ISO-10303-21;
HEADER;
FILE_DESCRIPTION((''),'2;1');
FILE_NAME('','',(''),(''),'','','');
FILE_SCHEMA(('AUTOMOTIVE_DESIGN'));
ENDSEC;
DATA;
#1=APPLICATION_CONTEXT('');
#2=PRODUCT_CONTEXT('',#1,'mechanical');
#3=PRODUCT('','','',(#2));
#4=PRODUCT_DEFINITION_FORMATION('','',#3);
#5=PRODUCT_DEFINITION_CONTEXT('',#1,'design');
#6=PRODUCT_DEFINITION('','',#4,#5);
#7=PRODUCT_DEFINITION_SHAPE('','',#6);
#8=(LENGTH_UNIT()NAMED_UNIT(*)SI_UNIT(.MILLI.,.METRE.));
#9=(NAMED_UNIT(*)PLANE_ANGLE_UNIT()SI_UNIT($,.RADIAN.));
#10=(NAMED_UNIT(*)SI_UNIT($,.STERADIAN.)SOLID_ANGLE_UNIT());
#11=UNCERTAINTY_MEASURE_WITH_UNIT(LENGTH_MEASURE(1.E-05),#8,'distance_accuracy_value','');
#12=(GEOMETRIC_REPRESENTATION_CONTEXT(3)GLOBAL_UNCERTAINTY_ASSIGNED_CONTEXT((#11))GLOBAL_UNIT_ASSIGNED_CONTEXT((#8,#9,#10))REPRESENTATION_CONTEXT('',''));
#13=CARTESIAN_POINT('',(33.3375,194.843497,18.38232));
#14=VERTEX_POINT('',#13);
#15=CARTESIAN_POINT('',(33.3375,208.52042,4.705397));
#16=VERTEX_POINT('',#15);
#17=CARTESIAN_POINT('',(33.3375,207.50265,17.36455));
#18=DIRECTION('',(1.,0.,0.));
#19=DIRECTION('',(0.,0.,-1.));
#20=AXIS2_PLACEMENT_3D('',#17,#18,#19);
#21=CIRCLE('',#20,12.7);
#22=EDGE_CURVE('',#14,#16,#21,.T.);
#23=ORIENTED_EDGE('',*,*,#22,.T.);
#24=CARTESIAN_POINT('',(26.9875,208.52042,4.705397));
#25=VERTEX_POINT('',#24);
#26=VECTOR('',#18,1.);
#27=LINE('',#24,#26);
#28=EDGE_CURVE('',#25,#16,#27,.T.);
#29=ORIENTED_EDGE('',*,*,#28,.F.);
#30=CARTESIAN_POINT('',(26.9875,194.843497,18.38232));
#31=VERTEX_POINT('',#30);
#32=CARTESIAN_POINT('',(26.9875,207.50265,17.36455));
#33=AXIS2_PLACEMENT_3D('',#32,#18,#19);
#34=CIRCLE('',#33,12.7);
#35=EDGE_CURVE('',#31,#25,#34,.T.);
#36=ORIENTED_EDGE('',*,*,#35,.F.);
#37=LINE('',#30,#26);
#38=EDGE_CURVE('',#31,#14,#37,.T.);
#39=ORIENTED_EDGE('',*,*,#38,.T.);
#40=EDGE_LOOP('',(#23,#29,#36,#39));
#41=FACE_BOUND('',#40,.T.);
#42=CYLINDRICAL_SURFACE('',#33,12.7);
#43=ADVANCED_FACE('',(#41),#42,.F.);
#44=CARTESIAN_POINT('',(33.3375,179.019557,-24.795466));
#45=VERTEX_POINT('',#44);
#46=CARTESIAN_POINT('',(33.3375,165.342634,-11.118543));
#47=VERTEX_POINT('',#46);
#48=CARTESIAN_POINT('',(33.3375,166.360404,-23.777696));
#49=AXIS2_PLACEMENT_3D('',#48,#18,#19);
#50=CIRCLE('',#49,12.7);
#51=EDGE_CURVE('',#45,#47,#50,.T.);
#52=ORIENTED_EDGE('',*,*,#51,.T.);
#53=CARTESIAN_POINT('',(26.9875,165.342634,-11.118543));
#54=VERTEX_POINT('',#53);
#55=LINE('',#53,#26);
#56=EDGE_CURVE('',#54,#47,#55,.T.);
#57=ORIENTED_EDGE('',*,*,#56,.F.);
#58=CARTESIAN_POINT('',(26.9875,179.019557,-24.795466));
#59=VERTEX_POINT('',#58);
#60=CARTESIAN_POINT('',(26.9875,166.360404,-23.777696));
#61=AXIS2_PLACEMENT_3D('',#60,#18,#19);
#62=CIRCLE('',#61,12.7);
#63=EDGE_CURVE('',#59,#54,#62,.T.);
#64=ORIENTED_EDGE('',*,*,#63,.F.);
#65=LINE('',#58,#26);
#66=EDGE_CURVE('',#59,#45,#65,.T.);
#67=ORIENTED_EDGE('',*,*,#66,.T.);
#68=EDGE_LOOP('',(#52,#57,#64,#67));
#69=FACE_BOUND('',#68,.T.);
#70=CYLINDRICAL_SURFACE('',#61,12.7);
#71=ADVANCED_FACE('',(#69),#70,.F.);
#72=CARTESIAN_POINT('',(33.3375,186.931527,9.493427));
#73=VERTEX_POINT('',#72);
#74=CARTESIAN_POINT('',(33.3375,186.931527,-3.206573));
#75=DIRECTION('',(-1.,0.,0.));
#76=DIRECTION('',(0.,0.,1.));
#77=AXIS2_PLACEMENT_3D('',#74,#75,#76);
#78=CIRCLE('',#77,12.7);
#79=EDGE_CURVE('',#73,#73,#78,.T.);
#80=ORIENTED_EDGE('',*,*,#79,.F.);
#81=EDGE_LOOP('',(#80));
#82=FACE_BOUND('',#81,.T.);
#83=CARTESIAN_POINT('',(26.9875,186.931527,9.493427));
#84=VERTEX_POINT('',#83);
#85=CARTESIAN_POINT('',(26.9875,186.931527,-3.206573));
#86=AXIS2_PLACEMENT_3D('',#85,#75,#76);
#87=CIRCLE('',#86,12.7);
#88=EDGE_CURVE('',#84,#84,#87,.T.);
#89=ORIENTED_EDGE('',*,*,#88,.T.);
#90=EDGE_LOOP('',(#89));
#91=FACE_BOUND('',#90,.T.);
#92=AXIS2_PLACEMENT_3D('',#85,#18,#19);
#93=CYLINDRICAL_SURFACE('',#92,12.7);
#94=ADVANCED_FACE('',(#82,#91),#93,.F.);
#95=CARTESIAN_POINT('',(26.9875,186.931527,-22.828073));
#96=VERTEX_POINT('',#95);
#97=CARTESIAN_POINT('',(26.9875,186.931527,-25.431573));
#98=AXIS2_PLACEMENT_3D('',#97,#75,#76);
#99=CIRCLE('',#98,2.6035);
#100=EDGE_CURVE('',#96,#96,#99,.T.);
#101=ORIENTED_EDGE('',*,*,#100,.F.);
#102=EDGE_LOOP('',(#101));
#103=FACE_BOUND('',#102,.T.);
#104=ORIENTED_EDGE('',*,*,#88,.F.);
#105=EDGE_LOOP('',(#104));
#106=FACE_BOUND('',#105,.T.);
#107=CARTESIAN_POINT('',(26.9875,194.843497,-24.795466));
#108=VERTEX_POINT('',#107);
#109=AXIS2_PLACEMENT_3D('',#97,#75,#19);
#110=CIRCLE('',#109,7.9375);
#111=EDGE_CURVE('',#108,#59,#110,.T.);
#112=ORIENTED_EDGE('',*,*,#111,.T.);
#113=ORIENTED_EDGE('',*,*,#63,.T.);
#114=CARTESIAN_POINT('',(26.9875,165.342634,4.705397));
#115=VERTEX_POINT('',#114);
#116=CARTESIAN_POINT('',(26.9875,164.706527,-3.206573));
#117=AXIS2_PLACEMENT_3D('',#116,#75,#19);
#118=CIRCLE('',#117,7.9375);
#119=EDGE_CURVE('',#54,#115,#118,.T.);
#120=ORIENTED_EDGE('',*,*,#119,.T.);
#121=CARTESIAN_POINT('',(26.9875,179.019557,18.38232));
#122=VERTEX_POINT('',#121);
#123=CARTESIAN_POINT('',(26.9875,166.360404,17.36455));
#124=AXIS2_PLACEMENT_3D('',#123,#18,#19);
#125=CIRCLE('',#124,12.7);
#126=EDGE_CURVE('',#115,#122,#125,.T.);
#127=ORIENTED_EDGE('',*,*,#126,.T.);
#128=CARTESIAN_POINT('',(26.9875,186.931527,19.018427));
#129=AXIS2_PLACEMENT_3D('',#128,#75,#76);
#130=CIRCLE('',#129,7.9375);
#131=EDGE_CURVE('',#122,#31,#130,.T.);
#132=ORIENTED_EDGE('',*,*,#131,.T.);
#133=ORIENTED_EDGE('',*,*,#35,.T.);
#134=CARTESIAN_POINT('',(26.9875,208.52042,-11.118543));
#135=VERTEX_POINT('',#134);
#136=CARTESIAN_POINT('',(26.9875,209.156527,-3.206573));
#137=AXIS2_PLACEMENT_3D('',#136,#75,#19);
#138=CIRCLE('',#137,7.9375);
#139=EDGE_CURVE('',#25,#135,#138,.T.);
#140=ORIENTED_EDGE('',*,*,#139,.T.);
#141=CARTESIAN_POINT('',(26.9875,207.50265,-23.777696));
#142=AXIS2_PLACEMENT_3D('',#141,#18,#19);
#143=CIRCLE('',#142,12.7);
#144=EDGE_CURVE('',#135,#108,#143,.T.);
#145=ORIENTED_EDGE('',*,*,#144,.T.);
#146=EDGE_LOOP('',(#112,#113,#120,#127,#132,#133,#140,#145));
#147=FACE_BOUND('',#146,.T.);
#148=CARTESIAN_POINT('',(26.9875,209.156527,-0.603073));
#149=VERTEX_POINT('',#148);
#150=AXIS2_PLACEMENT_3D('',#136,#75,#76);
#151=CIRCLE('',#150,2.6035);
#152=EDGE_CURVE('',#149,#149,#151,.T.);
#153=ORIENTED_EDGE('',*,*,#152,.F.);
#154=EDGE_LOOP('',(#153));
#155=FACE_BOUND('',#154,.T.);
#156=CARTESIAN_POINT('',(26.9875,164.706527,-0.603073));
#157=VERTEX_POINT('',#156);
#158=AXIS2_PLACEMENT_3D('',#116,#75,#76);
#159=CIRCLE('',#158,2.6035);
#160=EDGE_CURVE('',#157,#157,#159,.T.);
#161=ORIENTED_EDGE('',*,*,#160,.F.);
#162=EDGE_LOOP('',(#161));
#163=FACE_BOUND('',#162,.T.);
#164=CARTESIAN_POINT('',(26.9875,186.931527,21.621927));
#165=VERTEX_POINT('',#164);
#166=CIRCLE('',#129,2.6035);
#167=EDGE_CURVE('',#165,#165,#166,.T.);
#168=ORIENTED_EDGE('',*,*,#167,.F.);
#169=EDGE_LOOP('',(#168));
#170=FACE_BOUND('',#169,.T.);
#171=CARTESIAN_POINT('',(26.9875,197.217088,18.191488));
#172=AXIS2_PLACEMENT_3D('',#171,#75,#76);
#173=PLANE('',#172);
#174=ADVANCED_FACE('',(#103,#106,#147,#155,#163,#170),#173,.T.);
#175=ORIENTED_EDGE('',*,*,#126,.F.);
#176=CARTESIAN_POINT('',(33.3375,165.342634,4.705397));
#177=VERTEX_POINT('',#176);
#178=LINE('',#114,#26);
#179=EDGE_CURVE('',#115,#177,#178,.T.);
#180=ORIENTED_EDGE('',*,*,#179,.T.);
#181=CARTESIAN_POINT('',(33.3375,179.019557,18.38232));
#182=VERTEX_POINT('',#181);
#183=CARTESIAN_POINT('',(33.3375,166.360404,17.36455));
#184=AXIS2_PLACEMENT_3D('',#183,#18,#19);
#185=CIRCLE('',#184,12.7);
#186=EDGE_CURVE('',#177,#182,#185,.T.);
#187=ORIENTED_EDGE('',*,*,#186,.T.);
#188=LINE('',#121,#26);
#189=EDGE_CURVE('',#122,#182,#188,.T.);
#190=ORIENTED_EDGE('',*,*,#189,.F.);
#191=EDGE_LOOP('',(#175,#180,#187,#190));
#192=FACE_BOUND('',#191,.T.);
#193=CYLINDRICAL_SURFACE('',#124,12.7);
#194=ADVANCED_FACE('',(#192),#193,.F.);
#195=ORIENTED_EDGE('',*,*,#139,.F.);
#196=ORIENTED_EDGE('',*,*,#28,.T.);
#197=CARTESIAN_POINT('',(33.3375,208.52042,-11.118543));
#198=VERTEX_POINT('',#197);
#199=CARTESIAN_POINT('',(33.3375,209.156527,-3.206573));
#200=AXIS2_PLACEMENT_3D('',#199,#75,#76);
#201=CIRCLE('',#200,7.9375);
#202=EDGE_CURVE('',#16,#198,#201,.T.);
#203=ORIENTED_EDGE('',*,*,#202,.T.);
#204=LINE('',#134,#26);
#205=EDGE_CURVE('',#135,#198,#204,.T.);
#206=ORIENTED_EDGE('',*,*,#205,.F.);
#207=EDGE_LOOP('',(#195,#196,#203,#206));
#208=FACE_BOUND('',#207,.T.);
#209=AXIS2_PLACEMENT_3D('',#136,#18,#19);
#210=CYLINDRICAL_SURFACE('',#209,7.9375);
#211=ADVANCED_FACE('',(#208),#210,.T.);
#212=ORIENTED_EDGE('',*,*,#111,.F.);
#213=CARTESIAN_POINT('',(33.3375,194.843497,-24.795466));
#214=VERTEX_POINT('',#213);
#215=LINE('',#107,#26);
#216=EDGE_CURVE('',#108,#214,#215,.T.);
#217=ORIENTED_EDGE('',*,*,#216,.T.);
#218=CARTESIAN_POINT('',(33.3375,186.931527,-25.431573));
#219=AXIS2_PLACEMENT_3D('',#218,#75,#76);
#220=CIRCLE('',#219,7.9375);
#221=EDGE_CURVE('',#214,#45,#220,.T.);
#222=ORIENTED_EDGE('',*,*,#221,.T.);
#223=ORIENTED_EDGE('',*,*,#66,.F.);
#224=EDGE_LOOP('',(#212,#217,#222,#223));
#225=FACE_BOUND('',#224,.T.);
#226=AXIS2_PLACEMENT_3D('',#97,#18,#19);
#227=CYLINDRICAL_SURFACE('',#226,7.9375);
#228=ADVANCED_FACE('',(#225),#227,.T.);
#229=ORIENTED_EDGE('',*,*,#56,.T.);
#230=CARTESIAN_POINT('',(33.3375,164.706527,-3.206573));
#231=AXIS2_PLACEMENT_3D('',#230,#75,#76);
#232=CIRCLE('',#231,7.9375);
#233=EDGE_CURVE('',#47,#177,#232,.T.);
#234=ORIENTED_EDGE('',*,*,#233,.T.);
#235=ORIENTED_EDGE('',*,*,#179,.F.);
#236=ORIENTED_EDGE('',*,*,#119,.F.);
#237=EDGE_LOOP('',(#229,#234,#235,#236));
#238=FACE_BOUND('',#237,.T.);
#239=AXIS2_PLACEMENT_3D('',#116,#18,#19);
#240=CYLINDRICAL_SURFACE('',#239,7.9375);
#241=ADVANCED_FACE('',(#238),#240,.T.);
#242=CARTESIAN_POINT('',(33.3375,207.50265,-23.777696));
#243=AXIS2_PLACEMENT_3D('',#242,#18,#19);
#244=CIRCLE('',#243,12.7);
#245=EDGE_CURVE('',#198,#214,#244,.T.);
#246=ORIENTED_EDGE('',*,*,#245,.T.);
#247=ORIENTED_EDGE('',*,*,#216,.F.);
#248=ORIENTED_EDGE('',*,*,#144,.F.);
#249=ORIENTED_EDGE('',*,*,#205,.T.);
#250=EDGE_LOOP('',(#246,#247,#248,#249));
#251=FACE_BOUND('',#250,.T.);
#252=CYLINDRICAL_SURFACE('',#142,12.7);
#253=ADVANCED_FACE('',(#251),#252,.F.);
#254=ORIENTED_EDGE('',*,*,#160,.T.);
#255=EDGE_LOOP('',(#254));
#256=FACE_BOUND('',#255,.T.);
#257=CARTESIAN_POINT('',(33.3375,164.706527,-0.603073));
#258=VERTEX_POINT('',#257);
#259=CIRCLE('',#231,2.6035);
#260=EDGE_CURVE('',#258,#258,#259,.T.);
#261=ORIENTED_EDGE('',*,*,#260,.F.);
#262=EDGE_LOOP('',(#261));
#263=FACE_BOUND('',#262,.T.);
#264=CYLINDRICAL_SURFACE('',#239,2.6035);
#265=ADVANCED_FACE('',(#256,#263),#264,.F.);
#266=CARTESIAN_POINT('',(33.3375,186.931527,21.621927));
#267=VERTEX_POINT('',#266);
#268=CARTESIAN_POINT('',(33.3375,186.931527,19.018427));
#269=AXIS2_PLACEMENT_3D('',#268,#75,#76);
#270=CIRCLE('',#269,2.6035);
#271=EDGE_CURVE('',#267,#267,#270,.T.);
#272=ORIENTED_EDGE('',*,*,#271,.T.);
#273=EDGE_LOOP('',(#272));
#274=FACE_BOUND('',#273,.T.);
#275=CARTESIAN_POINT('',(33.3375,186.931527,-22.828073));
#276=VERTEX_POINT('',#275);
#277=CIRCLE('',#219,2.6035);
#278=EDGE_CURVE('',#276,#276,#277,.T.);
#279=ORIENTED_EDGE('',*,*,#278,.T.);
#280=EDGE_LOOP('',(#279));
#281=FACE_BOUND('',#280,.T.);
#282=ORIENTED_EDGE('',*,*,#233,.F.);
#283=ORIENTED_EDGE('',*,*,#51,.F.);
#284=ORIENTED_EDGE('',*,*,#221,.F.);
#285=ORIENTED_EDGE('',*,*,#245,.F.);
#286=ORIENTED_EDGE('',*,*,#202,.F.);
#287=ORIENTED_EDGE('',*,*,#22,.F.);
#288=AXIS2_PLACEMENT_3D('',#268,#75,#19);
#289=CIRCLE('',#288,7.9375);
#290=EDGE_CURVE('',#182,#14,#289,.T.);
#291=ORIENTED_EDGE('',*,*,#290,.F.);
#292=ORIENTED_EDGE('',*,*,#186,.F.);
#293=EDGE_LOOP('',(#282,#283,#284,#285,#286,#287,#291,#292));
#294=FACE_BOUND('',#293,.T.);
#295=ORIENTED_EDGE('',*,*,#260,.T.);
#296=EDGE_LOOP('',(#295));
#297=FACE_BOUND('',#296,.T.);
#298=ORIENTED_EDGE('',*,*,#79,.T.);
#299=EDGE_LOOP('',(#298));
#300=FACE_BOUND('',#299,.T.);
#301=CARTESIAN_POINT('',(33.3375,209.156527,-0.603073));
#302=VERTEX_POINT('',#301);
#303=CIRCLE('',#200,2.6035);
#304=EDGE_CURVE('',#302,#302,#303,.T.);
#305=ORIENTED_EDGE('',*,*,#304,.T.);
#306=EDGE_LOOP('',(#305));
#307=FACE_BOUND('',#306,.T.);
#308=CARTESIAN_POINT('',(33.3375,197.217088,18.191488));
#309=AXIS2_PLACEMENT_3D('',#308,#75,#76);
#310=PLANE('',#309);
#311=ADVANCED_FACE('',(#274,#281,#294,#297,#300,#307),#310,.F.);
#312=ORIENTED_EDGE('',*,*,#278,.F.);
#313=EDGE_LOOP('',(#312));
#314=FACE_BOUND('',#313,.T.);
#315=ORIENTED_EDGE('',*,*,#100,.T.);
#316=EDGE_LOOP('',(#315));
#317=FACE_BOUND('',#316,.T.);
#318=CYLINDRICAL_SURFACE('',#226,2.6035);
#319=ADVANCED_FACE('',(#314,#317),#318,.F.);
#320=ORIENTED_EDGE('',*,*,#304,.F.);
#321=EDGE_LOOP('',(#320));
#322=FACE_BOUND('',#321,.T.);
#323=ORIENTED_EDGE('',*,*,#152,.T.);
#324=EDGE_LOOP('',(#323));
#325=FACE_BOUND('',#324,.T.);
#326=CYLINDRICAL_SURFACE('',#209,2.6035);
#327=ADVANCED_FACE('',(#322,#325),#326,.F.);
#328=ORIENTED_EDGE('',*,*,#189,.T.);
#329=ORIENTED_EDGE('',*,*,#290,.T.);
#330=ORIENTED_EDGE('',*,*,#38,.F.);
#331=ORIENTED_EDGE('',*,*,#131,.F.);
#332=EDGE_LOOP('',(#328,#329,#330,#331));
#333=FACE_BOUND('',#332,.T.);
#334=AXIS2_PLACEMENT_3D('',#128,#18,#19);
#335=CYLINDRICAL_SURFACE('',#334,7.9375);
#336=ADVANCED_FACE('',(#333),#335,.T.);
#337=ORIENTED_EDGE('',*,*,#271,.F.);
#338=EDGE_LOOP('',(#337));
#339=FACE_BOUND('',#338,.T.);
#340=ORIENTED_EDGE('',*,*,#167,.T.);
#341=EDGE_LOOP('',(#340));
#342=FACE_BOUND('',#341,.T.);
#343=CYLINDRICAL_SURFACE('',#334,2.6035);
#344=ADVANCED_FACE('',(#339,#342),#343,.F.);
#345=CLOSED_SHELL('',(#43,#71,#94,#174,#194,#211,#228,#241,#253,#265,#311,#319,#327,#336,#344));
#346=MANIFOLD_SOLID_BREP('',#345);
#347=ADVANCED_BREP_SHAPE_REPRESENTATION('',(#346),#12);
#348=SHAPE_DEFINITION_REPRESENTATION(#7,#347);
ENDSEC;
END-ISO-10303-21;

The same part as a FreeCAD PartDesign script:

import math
import FreeCAD as App
import Part
import Sketcher

V = App.Vector
Q = App.Units.Quantity

doc = App.newDocument("Part")
body = doc.addObject("PartDesign::Body", "Body")

# Sketch on YZ plane
sketch1 = doc.addObject("Sketcher::SketchObject", "Sketch")
body.addObject(sketch1)
sketch1.AttachmentSupport = (doc.YZ_Plane, [""])
sketch1.MapMode = "FlatFace"
sketch1.AttachmentOffset = App.Placement(V(0, 0, 1.3125 * 25.4), App.Rotation())
sketch1.addGeometry(Part.ArcOfCircle(Part.Circle(V(186.931527, 19.018427, 0), V(0, 0, 1), 7.9375), math.radians(90), math.radians(184.596579)), False)
sketch1.addGeometry(Part.ArcOfCircle(Part.Circle(V(186.931527, 19.018427, 0), V(0, 0, 1), 7.9375), math.radians(-4.596579), math.radians(90)), False)
sketch1.addGeometry(Part.ArcOfCircle(Part.Circle(V(207.50265, 17.36455, 0), V(0, 0, 1), 12.7), math.radians(175.403421), math.radians(274.596579)), False)
sketch1.addGeometry(Part.ArcOfCircle(Part.Circle(V(209.156527, -3.206573, 0), V(0, 0, 1), 7.9375), math.radians(0), math.radians(94.596579)), False)
sketch1.addGeometry(Part.ArcOfCircle(Part.Circle(V(209.156527, -3.206573, 0), V(0, 0, 1), 7.9375), math.radians(-94.596579), math.radians(0)), False)
sketch1.addGeometry(Part.ArcOfCircle(Part.Circle(V(207.50265, -23.777696, 0), V(0, 0, 1), 12.7), math.radians(85.403421), math.radians(184.596579)), False)
sketch1.addGeometry(Part.ArcOfCircle(Part.Circle(V(186.931527, -25.431573, 0), V(0, 0, 1), 7.9375), math.radians(-90), math.radians(4.596579)), False)
sketch1.addGeometry(Part.ArcOfCircle(Part.Circle(V(186.931527, -25.431573, 0), V(0, 0, 1), 7.9375), math.radians(175.403421), math.radians(270)), False)
sketch1.addGeometry(Part.ArcOfCircle(Part.Circle(V(166.360404, -23.777696, 0), V(0, 0, 1), 12.7), math.radians(-4.596579), math.radians(94.596579)), False)
sketch1.addGeometry(Part.ArcOfCircle(Part.Circle(V(164.706527, -3.206573, 0), V(0, 0, 1), 7.9375), math.radians(180), math.radians(274.596579)), False)
sketch1.addGeometry(Part.ArcOfCircle(Part.Circle(V(164.706527, -3.206573, 0), V(0, 0, 1), 7.9375), math.radians(85.403421), math.radians(180)), False)
sketch1.addGeometry(Part.ArcOfCircle(Part.Circle(V(166.360404, 17.36455, 0), V(0, 0, 1), 12.7), math.radians(-94.596579), math.radians(4.596579)), False)
sketch1.addGeometry(Part.Circle(V(164.706527, -3.206573, 0), V(0, 0, 1), 2.6035), False)
sketch1.addGeometry(Part.Circle(V(186.931527, 19.018427, 0), V(0, 0, 1), 2.6035), False)
sketch1.addGeometry(Part.Circle(V(186.931527, -3.206573, 0), V(0, 0, 1), 12.7), False)
sketch1.addGeometry(Part.Circle(V(186.931527, -25.431573, 0), V(0, 0, 1), 2.6035), False)
sketch1.addGeometry(Part.Circle(V(209.156527, -3.206573, 0), V(0, 0, 1), 2.6035), False)
sketch1.addConstraint(Sketcher.Constraint("Tangent", 0, 1, 1, 2))
sketch1.addConstraint(Sketcher.Constraint("Tangent", 1, 1, 2, 1))
sketch1.addConstraint(Sketcher.Constraint("Tangent", 2, 2, 3, 2))
sketch1.addConstraint(Sketcher.Constraint("Tangent", 3, 1, 4, 2))
sketch1.addConstraint(Sketcher.Constraint("Tangent", 4, 1, 5, 1))
sketch1.addConstraint(Sketcher.Constraint("Tangent", 5, 2, 6, 2))
sketch1.addConstraint(Sketcher.Constraint("Tangent", 6, 1, 7, 2))
sketch1.addConstraint(Sketcher.Constraint("Tangent", 7, 1, 8, 1))
sketch1.addConstraint(Sketcher.Constraint("Tangent", 8, 2, 9, 2))
sketch1.addConstraint(Sketcher.Constraint("Tangent", 9, 1, 10, 2))
sketch1.addConstraint(Sketcher.Constraint("Tangent", 10, 1, 11, 1))
sketch1.addConstraint(Sketcher.Constraint("Tangent", 11, 2, 0, 2))
sketch1.addConstraint(Sketcher.Constraint("Coincident", 12, 3, 9, 3))
sketch1.addConstraint(Sketcher.Constraint("Coincident", 13, 3, 0, 3))
sketch1.addConstraint(Sketcher.Constraint("Coincident", 15, 3, 6, 3))
sketch1.addConstraint(Sketcher.Constraint("Coincident", 16, 3, 3, 3))
sketch1.addConstraint(Sketcher.Constraint("Equal", 0, 1))
sketch1.addConstraint(Sketcher.Constraint("Equal", 1, 3))
sketch1.addConstraint(Sketcher.Constraint("Equal", 3, 4))
sketch1.addConstraint(Sketcher.Constraint("Equal", 2, 5))
sketch1.addConstraint(Sketcher.Constraint("Equal", 4, 6))
sketch1.addConstraint(Sketcher.Constraint("Equal", 6, 7))
sketch1.addConstraint(Sketcher.Constraint("Equal", 5, 8))
sketch1.addConstraint(Sketcher.Constraint("Equal", 7, 9))
sketch1.addConstraint(Sketcher.Constraint("Equal", 9, 10))
sketch1.addConstraint(Sketcher.Constraint("Equal", 8, 11))
sketch1.addConstraint(Sketcher.Constraint("Equal", 12, 13))
sketch1.addConstraint(Sketcher.Constraint("Equal", 11, 14))
sketch1.addConstraint(Sketcher.Constraint("Equal", 13, 15))
sketch1.addConstraint(Sketcher.Constraint("Equal", 15, 16))
sketch1.addConstraint(Sketcher.Constraint("Horizontal", 5, 3, 8, 3))
sketch1.addConstraint(Sketcher.Constraint("Horizontal", 4, 3, 9, 3))
sketch1.addConstraint(Sketcher.Constraint("Horizontal", 2, 3, 11, 3))
sketch1.addConstraint(Sketcher.Constraint("Horizontal", 12, 3, 14, 3))
sketch1.addConstraint(Sketcher.Constraint("Horizontal", 16, 3, 3, 1))
sketch1.addConstraint(Sketcher.Constraint("Horizontal", 3, 1, 9, 1))
sketch1.addConstraint(Sketcher.Constraint("Vertical", 2, 3, 5, 3))
sketch1.addConstraint(Sketcher.Constraint("Vertical", 13, 3, 14, 3))
sketch1.addConstraint(Sketcher.Constraint("Vertical", 15, 3, 0, 1))
sketch1.addConstraint(Sketcher.Constraint("Vertical", 0, 1, 6, 1))
sketch1.addConstraint(Sketcher.Constraint("Diameter", 14, Q("1 in")))
sketch1.addConstraint(Sketcher.Constraint("Diameter", 12, Q("0.205 in")))
sketch1.addConstraint(Sketcher.Constraint("Radius", 0, Q("0.3125 in")))
sketch1.addConstraint(Sketcher.Constraint("DistanceY", 6, 3, 1, 3, Q("1.75 in")))
sketch1.addConstraint(Sketcher.Constraint("DistanceX", 1, 3, 3, 3, Q("0.875 in")))
sketch1.addConstraint(Sketcher.Constraint("DistanceX", -1, 1, 2, 3, Q("207.50265 mm")))
sketch1.addConstraint(Sketcher.Constraint("DistanceY", -1, 1, 2, 3, Q("17.36455 mm")))
pad1 = doc.addObject("PartDesign::Pad", "Pad")
body.addObject(pad1)
pad1.Profile = sketch1
pad1.Length = Q("0.25 in")
pad1.Reversed = True

doc.recompute()
